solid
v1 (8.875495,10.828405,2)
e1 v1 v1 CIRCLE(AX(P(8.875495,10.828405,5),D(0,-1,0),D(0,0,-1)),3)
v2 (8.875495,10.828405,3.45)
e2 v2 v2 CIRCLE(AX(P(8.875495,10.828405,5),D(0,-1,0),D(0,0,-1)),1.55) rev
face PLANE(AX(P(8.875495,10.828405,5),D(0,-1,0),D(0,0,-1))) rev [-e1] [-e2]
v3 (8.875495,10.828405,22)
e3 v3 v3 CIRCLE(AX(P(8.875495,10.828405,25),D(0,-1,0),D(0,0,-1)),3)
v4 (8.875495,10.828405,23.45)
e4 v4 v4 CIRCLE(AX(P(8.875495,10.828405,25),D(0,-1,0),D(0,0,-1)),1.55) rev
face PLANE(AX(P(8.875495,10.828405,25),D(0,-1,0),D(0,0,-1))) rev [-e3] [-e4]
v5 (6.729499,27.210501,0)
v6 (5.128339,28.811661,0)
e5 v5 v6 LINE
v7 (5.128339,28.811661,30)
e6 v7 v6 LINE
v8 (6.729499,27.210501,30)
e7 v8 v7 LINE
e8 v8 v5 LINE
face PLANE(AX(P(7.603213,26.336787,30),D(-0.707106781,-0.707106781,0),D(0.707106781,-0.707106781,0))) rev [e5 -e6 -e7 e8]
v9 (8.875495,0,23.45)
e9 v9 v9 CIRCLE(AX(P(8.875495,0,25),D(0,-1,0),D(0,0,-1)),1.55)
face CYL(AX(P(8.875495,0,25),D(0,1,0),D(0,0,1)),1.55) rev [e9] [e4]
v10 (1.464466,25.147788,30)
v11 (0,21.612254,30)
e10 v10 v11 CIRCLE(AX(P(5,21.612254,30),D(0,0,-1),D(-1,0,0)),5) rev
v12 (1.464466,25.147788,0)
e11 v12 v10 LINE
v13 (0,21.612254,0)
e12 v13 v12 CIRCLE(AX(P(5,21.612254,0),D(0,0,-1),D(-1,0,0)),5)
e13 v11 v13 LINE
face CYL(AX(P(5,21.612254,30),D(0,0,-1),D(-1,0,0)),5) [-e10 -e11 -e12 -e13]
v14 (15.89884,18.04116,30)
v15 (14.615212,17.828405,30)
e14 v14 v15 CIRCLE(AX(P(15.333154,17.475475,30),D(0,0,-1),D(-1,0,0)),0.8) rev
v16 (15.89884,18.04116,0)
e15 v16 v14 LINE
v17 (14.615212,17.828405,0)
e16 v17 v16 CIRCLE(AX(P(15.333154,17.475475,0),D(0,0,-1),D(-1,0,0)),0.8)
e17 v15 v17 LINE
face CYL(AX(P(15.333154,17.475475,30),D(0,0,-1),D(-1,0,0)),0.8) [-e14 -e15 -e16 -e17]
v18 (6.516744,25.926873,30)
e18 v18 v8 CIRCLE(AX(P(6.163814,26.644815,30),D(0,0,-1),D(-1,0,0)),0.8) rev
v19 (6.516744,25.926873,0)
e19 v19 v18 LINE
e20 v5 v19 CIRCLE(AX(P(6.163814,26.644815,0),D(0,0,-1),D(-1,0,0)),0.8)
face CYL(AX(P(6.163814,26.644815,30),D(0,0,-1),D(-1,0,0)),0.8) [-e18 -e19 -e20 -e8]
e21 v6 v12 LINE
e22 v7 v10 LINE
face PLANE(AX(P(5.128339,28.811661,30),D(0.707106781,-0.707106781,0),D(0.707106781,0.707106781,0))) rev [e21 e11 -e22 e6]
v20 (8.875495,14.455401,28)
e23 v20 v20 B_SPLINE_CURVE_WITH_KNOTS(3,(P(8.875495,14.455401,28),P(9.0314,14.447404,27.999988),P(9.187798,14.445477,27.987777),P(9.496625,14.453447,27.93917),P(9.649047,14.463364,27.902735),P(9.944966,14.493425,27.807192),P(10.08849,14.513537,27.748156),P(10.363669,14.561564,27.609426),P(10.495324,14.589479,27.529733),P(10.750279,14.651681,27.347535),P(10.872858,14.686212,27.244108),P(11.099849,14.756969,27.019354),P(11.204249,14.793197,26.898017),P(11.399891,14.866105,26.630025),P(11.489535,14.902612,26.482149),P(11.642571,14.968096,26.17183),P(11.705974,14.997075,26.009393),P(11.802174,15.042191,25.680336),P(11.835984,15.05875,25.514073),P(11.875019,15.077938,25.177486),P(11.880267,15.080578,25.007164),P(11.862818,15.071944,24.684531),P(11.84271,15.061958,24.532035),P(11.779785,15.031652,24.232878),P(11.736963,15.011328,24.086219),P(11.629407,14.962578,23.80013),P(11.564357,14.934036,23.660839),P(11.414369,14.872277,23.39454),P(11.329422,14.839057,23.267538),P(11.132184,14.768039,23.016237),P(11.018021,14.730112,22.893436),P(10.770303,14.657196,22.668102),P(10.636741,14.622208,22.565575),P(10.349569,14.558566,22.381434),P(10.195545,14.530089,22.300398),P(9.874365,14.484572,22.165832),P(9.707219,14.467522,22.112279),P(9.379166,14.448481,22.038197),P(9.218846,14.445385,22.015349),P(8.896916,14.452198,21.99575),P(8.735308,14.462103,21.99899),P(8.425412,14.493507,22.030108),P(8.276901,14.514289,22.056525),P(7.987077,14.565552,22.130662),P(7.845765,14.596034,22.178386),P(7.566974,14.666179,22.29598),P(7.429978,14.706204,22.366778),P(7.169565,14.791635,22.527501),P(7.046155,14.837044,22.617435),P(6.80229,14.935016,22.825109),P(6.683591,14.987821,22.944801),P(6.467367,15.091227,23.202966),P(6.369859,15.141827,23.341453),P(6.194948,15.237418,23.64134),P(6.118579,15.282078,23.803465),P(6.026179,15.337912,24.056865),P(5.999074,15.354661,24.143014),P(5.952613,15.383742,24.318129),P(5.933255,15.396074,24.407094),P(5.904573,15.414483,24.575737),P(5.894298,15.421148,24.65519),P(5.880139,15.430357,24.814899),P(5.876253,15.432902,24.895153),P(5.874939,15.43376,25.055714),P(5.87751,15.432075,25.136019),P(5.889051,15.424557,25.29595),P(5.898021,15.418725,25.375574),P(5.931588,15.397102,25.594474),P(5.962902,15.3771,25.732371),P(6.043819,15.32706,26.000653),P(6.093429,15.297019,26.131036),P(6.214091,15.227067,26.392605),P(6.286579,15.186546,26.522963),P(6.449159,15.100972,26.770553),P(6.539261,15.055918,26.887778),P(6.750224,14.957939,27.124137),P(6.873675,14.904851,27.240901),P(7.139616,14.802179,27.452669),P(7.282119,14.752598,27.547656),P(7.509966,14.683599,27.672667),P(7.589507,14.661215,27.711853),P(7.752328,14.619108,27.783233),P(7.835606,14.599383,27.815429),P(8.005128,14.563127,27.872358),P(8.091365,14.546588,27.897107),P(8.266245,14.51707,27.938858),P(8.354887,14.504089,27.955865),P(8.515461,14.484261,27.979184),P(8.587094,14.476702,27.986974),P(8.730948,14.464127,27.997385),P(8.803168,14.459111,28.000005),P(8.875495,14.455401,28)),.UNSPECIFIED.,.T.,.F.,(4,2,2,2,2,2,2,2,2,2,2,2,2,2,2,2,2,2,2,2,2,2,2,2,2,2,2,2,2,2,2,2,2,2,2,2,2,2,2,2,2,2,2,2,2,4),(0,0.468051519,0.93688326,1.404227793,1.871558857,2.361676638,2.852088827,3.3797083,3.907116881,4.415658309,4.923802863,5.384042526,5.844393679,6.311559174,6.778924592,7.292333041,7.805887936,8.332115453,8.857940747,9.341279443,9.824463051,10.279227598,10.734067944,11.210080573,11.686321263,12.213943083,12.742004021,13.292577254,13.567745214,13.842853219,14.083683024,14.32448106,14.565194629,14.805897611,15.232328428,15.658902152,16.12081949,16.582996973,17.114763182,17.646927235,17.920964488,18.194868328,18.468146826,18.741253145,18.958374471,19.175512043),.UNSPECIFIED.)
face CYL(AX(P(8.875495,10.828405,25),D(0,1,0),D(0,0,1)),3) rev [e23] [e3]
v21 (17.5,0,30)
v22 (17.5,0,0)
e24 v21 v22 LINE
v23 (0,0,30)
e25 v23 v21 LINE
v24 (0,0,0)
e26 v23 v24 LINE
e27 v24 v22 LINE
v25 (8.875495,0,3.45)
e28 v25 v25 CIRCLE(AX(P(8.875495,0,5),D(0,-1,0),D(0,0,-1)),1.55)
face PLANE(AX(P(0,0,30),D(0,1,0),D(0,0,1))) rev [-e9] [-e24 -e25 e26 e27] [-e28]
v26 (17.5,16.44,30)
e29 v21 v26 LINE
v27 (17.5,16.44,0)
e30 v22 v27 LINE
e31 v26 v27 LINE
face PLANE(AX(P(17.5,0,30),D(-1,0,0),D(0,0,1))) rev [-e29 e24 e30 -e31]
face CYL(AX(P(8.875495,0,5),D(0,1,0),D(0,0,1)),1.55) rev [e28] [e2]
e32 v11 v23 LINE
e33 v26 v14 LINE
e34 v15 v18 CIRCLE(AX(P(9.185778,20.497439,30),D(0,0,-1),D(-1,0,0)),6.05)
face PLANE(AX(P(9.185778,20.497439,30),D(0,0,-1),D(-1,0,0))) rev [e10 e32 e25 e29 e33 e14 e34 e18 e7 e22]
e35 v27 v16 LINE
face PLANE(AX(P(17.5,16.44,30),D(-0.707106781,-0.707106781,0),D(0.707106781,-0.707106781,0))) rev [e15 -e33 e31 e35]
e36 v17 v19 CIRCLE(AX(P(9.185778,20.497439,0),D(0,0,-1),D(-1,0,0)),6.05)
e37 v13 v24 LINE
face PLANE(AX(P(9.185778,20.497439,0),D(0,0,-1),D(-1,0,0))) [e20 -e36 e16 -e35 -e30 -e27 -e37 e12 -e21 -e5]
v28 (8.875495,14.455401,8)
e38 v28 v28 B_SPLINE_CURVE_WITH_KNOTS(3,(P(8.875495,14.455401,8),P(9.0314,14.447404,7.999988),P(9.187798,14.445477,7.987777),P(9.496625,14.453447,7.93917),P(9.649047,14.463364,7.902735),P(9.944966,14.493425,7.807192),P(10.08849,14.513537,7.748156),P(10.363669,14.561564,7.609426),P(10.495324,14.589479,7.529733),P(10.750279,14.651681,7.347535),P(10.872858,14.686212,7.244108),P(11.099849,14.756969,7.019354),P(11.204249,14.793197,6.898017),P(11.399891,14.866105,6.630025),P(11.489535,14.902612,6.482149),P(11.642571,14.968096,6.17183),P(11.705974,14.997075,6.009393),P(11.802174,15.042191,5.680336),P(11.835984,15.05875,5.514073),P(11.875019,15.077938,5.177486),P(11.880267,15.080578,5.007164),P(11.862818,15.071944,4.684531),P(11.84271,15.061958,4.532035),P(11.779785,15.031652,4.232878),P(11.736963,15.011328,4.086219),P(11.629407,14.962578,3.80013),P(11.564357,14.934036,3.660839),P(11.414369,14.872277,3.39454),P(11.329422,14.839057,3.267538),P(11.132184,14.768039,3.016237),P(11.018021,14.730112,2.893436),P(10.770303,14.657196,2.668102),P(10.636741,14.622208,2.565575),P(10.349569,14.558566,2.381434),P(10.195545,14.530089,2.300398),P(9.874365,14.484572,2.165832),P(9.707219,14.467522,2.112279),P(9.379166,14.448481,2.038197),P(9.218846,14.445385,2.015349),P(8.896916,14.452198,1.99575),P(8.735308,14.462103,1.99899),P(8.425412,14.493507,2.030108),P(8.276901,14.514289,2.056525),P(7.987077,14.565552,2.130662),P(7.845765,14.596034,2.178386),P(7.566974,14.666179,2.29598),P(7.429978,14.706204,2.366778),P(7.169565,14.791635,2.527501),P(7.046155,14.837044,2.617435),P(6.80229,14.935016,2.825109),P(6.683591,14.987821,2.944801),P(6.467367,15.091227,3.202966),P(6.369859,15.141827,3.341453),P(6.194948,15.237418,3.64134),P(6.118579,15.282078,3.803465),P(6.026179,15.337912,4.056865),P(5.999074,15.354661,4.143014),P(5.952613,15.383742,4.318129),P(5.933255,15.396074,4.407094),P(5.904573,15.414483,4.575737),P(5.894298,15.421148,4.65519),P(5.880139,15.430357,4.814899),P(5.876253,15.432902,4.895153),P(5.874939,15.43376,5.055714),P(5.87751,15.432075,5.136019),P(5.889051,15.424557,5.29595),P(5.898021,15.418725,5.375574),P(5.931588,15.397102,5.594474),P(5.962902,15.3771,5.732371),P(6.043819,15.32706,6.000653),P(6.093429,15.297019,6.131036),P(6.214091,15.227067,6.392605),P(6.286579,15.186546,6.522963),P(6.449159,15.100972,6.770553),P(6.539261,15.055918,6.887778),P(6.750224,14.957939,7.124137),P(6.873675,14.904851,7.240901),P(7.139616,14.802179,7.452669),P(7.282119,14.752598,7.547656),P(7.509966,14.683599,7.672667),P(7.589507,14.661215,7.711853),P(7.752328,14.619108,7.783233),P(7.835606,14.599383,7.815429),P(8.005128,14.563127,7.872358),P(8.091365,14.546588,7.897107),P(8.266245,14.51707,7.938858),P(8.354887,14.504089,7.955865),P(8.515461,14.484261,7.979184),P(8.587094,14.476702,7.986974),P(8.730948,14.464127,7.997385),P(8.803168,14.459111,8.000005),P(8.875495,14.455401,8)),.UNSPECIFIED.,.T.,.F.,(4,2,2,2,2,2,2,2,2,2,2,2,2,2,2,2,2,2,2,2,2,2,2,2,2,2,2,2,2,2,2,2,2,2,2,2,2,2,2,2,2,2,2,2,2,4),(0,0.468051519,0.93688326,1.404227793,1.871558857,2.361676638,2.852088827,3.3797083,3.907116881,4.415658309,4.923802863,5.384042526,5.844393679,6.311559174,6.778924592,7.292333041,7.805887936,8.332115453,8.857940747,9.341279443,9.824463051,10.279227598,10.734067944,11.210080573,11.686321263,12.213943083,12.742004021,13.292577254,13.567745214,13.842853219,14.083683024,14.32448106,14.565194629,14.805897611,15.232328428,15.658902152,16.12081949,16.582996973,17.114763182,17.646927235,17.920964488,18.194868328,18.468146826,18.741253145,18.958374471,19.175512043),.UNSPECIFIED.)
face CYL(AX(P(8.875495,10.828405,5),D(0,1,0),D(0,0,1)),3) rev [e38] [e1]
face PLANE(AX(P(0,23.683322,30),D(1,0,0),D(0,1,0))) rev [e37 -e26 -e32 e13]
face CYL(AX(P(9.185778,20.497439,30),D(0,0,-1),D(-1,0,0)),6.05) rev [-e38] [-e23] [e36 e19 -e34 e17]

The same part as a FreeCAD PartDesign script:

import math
import FreeCAD as App
import Part
import Sketcher
Q = App.Units.Quantity


def edges_at(feature, points):
    """Names of the edges that pass closest to the given points."""
    edges = feature.Shape.Edges
    near = lambda p: min(range(len(edges)), key=lambda i: edges[i].distToShape(Part.Vertex(*p))[0])
    return sorted({f"Edge{near(p) + 1}" for p in points})

doc = App.newDocument("Part")
body = doc.addObject("PartDesign::Body", "Body")

sketch1 = doc.addObject("Sketcher::SketchObject", "Sketch")
body.addObject(sketch1)
sketch1.AttachmentSupport = (doc.XY_Plane, [""])
sketch1.MapMode = "FlatFace"
sketch1.addGeometry([
    Part.LineSegment(App.Vector(0, 0, 0), App.Vector(17.5, 0, 0)),
    Part.LineSegment(App.Vector(17.5, 0, 0), App.Vector(17.5, 16.4, 0)),
    Part.LineSegment(App.Vector(17.5, 16.4, 0), App.Vector(15, 18.9, 0)),
    Part.ArcOfCircle(Part.Circle(App.Vector(9.2, 20.5, 0), App.Vector(0, 0, 1), 6), math.radians(105), math.radians(345)),
    Part.LineSegment(App.Vector(7.6, 26.3, 0), App.Vector(5.1, 28.8, 0)),
    Part.LineSegment(App.Vector(5.1, 28.8, 0), App.Vector(0, 23.7, 0)),
    Part.LineSegment(App.Vector(0, 23.7, 0), App.Vector(0, 0, 0)),
], False)
sketch1.addConstraint([
    Sketcher.Constraint("Coincident", 0, 2, 1, 1),
    Sketcher.Constraint("Coincident", 1, 2, 2, 1),
    Sketcher.Constraint("Coincident", 2, 2, 3, 2),
    Sketcher.Constraint("Coincident", 3, 1, 4, 1),
    Sketcher.Constraint("Coincident", 4, 2, 5, 1),
    Sketcher.Constraint("Coincident", 5, 2, 6, 1),
    Sketcher.Constraint("Coincident", 6, 2, 0, 1),
    Sketcher.Constraint("Horizontal", 0),
    Sketcher.Constraint("Vertical", 1),
    Sketcher.Constraint("Vertical", 6),
    Sketcher.Constraint("Coincident", 6, 2, -1, 1),
    Sketcher.Constraint("Parallel", 2, 4),
    Sketcher.Constraint("Perpendicular", 4, 5),
    Sketcher.Constraint("Equal", 2, 4),
    Sketcher.Constraint("Angle", 2, Q("135 deg")),
    Sketcher.Constraint("Radius", 3, 6.05),
    Sketcher.Constraint("DistanceX", 0, 1, 0, 2, 17.5),
    Sketcher.Constraint("Distance", 2, 3.5),
    Sketcher.Constraint("DistanceY", 1, 1, 1, 2, 16.44),
    Sketcher.Constraint("DistanceY", 6, 2, 6, 1, 23.683322),
    Sketcher.Constraint("DistanceX", -1, 1, 3, 3, 9.185778),
])
pad1 = doc.addObject("PartDesign::Pad", "Pad")
body.addObject(pad1)
pad1.Profile = sketch1
pad1.Length = 30
doc.recompute()

fillet = doc.addObject("PartDesign::Fillet", "Fillet")
body.addObject(fillet)
fillet.Base = (pad1, edges_at(pad1, [(7.603, 26.337, 15), (15.025, 18.915, 15)]))
fillet.Radius = 0.8

sketch2 = doc.addObject("Sketcher::SketchObject", "Sketch001")
body.addObject(sketch2)
sketch2.AttachmentSupport = (doc.XZ_Plane, [""])
sketch2.MapMode = "FlatFace"
sketch2.AttachmentOffset = App.Placement(App.Vector(0, 0, -17.828405), App.Rotation())
sketch2.addGeometry([
    Part.Circle(App.Vector(8.9, 5, 0), App.Vector(0, 0, 1), 3),
    Part.Circle(App.Vector(8.9, 25, 0), App.Vector(0, 0, 1), 3),
], False)
sketch2.addConstraint([
    Sketcher.Constraint("Equal", 0, 1),
    Sketcher.Constraint("Vertical", 0, 3, 1, 3),
    Sketcher.Constraint("Diameter", 0, 6.0),
    Sketcher.Constraint("DistanceY", -1, 1, 0, 3, 5.0),
    Sketcher.Constraint("DistanceY", -1, 1, 1, 3, 25.0),
    Sketcher.Constraint("DistanceX", -1, 1, 0, 3, 8.875495),
])
pocket1 = doc.addObject("PartDesign::Pocket", "Pocket")
body.addObject(pocket1)
pocket1.Profile = sketch2
pocket1.Length = 7
pocket1.Reversed = True

sketch3 = doc.addObject("Sketcher::SketchObject", "Sketch002")
body.addObject(sketch3)
sketch3.AttachmentSupport = (doc.XZ_Plane, [""])
sketch3.MapMode = "FlatFace"
sketch3.AttachmentOffset = App.Placement(App.Vector(0, 0, -17.828405), App.Rotation())
sketch3.addGeometry([
    Part.Circle(App.Vector(8.9, 5, 0), App.Vector(0, 0, 1), 1.6),
    Part.Circle(App.Vector(8.9, 25, 0), App.Vector(0, 0, 1), 1.6),
], False)
sketch3.addConstraint([
    Sketcher.Constraint("Equal", 0, 1),
    Sketcher.Constraint("Vertical", 0, 3, 1, 3),
    Sketcher.Constraint("Diameter", 0, 3.1),
    Sketcher.Constraint("DistanceY", -1, 1, 0, 3, 5.0),
    Sketcher.Constraint("DistanceY", -1, 1, 1, 3, 25.0),
    Sketcher.Constraint("DistanceX", -1, 1, 0, 3, 8.875495),
])
pocket2 = doc.addObject("PartDesign::Pocket", "Pocket001")
body.addObject(pocket2)
pocket2.Profile = sketch3
pocket2.Type = "ThroughAll"
pocket2.Reversed = True
doc.recompute()

fillet2 = doc.addObject("PartDesign::Fillet", "Fillet001")
body.addObject(fillet2)
fillet2.Base = (pocket2, edges_at(pocket2, [(0, 23.683, 15)]))
fillet2.Radius = 5

doc.recompute()
